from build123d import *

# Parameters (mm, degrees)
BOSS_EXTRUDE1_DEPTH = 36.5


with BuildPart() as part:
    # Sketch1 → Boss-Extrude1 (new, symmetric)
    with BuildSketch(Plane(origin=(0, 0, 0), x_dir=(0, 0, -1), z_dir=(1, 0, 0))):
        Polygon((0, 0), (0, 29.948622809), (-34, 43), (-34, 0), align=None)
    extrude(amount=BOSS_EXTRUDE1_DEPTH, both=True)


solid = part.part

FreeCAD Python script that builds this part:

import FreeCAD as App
import Part
import Sketcher
from FreeCAD import Vector
Q = App.Units.Quantity

doc = App.newDocument("Part")
body = doc.addObject("PartDesign::Body", "Body")

sketch1 = body.newObject("Sketcher::SketchObject", "Sketch")
sketch1.AttachmentSupport = (doc.getObject("YZ_Plane"), [""])
sketch1.MapMode = "FlatFace"
sketch1.addGeometry(Part.LineSegment(Vector(0, 0, 0), Vector(29.948623, 0, 0)), False)
sketch1.addGeometry(Part.LineSegment(Vector(29.948623, 0, 0), Vector(43, 34, 0)), False)
sketch1.addGeometry(Part.LineSegment(Vector(43, 34, 0), Vector(0, 34, 0)), False)
sketch1.addGeometry(Part.LineSegment(Vector(0, 34, 0), Vector(0, 0, 0)), False)
sketch1.addConstraint(Sketcher.Constraint("Coincident", 0, 2, 1, 1))
sketch1.addConstraint(Sketcher.Constraint("Coincident", 1, 2, 2, 1))
sketch1.addConstraint(Sketcher.Constraint("Coincident", 2, 2, 3, 1))
sketch1.addConstraint(Sketcher.Constraint("Coincident", 3, 2, 0, 1))
sketch1.addConstraint(Sketcher.Constraint("Horizontal", 0))
sketch1.addConstraint(Sketcher.Constraint("Horizontal", 2))
sketch1.addConstraint(Sketcher.Constraint("Vertical", 3))
sketch1.addConstraint(Sketcher.Constraint("Coincident", 3, 2, -1, 1))
sketch1.addConstraint(Sketcher.Constraint("DistanceX", 2, 2, 2, 1, 43.0))
sketch1.addConstraint(Sketcher.Constraint("DistanceY", 3, 2, 3, 1, 34.0))
sketch1.addConstraint(Sketcher.Constraint("Angle", 1, Q("69 deg")))
pad1 = body.newObject("PartDesign::Pad", "Pad")
pad1.Profile = sketch1
pad1.Length = 73
pad1.Midplane = True

doc.recompute()
